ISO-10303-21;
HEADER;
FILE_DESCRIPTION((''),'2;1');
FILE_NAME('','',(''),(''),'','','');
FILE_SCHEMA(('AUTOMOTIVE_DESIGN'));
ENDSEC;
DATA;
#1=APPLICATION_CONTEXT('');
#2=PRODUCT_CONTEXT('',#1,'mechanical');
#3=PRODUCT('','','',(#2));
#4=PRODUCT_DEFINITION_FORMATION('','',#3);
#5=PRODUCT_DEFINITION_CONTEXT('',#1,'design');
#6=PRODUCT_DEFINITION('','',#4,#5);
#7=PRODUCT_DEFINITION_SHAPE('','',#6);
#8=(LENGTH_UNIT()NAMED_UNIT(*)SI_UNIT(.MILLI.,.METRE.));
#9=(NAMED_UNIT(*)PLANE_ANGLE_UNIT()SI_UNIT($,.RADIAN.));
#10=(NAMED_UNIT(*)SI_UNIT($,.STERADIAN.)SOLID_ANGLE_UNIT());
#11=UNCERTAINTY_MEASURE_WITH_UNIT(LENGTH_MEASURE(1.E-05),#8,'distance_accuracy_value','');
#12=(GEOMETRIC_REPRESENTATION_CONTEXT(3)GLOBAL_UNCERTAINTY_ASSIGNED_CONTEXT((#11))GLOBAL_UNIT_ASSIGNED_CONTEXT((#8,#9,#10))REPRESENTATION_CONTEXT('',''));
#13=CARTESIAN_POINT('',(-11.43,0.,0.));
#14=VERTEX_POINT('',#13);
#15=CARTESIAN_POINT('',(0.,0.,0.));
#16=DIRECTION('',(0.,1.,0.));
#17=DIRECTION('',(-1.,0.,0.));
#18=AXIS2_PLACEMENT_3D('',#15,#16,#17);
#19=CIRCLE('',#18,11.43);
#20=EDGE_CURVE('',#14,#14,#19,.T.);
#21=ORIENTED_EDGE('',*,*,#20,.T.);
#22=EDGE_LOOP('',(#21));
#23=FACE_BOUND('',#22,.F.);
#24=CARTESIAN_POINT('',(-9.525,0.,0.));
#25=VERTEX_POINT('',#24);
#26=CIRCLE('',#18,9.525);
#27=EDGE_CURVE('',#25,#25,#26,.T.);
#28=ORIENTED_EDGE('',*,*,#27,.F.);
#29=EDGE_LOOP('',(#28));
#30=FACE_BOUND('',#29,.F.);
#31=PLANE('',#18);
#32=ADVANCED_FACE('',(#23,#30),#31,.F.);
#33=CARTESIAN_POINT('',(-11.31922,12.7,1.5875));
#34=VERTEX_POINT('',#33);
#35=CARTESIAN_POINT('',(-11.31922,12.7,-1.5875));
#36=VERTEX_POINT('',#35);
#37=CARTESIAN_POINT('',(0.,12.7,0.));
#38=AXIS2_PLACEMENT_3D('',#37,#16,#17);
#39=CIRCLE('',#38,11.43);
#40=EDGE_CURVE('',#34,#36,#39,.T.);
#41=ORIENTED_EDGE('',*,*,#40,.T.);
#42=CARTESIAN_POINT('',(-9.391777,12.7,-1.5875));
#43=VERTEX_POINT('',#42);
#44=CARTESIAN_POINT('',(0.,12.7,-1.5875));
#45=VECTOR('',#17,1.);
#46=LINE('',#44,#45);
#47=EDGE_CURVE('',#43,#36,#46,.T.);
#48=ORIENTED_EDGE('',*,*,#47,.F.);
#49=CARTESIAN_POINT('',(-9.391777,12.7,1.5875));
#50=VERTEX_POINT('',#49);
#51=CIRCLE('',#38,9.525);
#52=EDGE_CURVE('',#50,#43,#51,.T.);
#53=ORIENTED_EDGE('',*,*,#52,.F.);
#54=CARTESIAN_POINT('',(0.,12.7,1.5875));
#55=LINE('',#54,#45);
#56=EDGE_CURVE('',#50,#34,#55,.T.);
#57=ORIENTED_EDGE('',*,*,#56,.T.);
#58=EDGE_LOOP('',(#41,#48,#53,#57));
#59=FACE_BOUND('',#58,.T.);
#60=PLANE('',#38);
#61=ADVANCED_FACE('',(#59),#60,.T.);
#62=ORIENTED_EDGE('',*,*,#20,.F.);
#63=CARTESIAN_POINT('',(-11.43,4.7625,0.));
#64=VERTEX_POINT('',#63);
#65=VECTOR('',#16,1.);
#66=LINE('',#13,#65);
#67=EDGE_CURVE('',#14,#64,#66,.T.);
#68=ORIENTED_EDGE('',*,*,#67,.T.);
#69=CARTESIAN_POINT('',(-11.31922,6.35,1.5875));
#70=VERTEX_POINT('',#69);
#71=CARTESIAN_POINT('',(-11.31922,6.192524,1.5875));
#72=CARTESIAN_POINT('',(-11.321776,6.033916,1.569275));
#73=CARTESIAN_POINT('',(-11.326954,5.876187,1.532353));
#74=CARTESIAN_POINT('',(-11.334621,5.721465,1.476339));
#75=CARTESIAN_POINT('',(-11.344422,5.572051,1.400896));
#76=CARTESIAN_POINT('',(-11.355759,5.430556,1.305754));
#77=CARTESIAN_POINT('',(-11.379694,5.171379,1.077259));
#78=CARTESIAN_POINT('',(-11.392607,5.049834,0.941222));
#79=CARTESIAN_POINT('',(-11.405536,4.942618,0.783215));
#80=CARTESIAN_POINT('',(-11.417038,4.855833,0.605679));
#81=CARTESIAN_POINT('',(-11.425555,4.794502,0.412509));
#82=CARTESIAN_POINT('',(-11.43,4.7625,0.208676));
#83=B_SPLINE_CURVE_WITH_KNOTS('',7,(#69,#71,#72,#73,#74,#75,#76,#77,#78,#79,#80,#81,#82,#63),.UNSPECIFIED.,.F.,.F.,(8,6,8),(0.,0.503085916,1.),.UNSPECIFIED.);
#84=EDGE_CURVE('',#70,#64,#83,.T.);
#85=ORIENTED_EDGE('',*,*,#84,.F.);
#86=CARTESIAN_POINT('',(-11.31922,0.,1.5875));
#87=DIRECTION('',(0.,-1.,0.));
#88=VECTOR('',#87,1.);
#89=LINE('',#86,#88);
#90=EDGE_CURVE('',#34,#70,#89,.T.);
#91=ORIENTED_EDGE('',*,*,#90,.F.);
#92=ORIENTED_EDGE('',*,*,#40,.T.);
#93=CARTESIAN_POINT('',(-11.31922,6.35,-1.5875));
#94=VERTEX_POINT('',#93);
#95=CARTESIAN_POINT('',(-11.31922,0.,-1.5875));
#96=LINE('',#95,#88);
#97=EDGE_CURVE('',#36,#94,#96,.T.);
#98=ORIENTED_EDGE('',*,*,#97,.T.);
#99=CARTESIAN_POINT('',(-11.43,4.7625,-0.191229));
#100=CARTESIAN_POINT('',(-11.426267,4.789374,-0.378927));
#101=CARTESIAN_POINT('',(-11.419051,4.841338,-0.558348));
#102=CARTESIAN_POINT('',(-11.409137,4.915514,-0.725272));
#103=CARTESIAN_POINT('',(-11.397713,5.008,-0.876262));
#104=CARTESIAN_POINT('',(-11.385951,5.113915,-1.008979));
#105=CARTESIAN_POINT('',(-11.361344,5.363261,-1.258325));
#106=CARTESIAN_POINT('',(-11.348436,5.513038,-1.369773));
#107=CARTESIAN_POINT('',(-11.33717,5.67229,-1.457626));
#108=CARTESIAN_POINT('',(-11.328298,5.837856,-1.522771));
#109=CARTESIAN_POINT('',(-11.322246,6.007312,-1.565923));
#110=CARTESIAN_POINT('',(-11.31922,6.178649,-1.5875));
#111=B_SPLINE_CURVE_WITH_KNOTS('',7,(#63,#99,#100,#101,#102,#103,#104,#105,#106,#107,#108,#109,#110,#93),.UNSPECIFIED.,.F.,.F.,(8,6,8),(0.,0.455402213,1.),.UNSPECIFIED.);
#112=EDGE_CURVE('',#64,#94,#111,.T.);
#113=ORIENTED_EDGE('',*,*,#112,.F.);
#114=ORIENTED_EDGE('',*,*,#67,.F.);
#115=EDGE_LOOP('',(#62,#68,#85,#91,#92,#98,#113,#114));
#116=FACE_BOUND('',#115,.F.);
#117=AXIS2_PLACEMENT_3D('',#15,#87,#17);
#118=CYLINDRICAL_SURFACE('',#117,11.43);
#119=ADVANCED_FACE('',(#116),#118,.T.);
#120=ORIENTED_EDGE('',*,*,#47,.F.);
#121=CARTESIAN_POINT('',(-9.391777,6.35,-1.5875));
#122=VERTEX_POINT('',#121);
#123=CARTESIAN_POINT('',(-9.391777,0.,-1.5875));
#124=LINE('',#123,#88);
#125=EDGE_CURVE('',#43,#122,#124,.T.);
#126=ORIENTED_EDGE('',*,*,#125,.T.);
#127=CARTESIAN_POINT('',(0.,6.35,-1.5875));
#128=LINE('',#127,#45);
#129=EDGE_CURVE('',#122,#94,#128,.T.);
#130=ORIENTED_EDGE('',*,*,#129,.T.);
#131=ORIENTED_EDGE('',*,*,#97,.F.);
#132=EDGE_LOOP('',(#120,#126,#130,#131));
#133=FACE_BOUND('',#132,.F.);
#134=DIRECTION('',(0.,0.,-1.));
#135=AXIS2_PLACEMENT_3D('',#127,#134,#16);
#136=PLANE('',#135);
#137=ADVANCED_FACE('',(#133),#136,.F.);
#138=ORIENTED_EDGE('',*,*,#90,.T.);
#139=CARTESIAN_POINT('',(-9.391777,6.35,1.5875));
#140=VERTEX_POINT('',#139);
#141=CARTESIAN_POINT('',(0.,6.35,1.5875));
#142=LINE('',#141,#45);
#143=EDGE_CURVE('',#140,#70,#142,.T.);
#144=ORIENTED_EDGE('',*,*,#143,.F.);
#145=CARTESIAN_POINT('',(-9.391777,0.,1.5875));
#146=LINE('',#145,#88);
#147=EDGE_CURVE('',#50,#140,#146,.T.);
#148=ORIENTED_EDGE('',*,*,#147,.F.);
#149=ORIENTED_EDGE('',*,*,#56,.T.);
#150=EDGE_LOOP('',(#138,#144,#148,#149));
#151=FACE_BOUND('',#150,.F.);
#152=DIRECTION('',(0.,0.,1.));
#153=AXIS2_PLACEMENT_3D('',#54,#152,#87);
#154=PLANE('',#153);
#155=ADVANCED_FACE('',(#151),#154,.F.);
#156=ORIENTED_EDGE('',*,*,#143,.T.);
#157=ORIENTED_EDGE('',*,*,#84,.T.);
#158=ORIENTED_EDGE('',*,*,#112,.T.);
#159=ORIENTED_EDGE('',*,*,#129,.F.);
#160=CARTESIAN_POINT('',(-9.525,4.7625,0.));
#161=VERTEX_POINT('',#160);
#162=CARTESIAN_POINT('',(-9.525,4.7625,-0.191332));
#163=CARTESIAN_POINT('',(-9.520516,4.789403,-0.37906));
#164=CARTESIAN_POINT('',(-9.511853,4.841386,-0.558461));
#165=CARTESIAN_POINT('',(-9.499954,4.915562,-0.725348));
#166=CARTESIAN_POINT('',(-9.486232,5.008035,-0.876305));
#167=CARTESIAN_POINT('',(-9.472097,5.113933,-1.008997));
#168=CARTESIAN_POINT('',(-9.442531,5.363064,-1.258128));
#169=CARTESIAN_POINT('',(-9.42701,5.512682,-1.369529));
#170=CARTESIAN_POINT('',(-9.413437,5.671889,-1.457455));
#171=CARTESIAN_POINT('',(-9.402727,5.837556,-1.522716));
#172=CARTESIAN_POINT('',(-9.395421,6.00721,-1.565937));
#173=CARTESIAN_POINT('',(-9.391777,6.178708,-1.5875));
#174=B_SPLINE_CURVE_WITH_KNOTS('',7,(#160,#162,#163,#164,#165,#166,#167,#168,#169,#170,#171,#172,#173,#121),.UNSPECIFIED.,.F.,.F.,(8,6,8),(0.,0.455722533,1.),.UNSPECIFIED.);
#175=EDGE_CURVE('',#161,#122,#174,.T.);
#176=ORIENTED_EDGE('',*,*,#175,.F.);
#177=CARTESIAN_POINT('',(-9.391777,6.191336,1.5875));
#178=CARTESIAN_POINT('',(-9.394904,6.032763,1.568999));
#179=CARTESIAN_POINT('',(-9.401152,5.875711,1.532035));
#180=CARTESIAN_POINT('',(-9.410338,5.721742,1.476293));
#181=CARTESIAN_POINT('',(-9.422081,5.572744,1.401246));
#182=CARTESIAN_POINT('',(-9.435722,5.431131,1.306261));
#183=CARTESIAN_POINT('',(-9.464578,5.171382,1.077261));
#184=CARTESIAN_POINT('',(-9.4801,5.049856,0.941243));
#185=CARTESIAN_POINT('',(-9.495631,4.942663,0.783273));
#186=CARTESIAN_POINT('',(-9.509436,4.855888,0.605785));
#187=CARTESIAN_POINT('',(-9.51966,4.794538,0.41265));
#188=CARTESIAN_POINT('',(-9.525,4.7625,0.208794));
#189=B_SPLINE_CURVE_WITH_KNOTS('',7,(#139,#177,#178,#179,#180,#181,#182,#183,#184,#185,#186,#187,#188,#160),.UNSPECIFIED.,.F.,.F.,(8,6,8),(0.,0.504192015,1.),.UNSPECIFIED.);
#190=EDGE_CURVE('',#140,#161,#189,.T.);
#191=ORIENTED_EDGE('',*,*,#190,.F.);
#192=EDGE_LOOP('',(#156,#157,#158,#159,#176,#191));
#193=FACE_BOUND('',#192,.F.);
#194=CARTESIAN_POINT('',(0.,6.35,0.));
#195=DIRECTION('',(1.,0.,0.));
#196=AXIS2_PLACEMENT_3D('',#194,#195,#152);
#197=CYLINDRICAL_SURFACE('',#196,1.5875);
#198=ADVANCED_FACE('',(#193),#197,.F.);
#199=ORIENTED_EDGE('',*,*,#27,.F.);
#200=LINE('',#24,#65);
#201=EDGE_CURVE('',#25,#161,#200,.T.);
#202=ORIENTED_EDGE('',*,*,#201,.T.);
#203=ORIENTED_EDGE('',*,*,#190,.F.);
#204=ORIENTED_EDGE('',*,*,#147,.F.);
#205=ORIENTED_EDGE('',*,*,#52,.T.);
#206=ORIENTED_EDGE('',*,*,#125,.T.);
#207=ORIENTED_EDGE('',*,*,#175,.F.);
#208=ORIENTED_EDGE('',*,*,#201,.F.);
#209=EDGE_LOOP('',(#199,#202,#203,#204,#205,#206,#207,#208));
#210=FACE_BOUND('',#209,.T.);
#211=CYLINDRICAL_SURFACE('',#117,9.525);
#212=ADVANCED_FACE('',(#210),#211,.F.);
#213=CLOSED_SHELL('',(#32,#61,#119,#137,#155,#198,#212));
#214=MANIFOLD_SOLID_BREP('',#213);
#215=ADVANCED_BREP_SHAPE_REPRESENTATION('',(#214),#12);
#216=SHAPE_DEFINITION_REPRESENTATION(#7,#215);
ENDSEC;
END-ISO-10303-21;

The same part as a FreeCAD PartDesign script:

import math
import FreeCAD as App
import Part
import Sketcher
from FreeCAD import Vector
Q = App.Units.Quantity

doc = App.newDocument("Part")
params = doc.addObject("Spreadsheet::Sheet", "Params")
for row, (alias, value) in enumerate([
    ("sketch1_diameter", "0.9 in"),
    ("sketch1_diameter2", "0.75 in"),
    ("pad1_length", "0.5 in"),
    ("sketch2_radius", "0.0625 in"),
    ("sketch2_width", "0.25 in"),
    ("pocket1_length", "0.5 in"),
], start=1):
    params.set(f"A{row}", alias)
    params.set(f"B{row}", "=" + value)
    params.setAlias(f"B{row}", alias)

body = doc.addObject("PartDesign::Body", "Body")

sketch1 = doc.addObject("Sketcher::SketchObject", "Sketch")
body.addObject(sketch1)
sketch1.AttachmentSupport = (doc.XZ_Plane, [""])
sketch1.MapMode = "FlatFace"
sketch1.addGeometry(Part.Circle(Vector(0, 0, 0), Vector(0, 0, 1), 11), False)
sketch1.addGeometry(Part.Circle(Vector(0, 0, 0), Vector(0, 0, 1), 10), False)
sketch1.addConstraint(Sketcher.Constraint("Coincident", 0, 3, -1, 1))
sketch1.addConstraint(Sketcher.Constraint("Coincident", 1, 3, -1, 1))
sketch1.addConstraint(Sketcher.Constraint("Diameter", 0, Q("0.9 in")))
sketch1.addConstraint(Sketcher.Constraint("Diameter", 1, Q("0.75 in")))
sketch1.setExpression("Constraints[2]", "Params.sketch1_diameter")
sketch1.setExpression("Constraints[3]", "Params.sketch1_diameter2")
pad1 = doc.addObject("PartDesign::Pad", "Pad")
body.addObject(pad1)
pad1.Profile = sketch1
pad1.setExpression("Length", "Params.pad1_length")
pad1.Reversed = True

sketch2 = doc.addObject("Sketcher::SketchObject", "Sketch001")
body.addObject(sketch2)
sketch2.AttachmentSupport = (doc.YZ_Plane, [""])
sketch2.MapMode = "FlatFace"
sketch2.addGeometry(Part.LineSegment(Vector(6.3, -1.6, 0), Vector(12.7, -1.6, 0)), False)
sketch2.addGeometry(Part.LineSegment(Vector(12.7, -1.6, 0), Vector(12.7, 1.6, 0)), False)
sketch2.addGeometry(Part.LineSegment(Vector(12.7, 1.6, 0), Vector(6.3, 1.6, 0)), False)
sketch2.addGeometry(Part.ArcOfCircle(Part.Circle(Vector(6.3, 0, 0), Vector(0, 0, 1), 1.6), math.radians(90), math.radians(270)), False)
sketch2.addConstraint(Sketcher.Constraint("Coincident", 0, 2, 1, 1))
sketch2.addConstraint(Sketcher.Constraint("Coincident", 1, 2, 2, 1))
sketch2.addConstraint(Sketcher.Constraint("Tangent", 2, 2, 3, 1))
sketch2.addConstraint(Sketcher.Constraint("Tangent", 3, 2, 0, 1))
sketch2.addConstraint(Sketcher.Constraint("Horizontal", 0))
sketch2.addConstraint(Sketcher.Constraint("Vertical", 1))
sketch2.addConstraint(Sketcher.Constraint("Horizontal", 2))
sketch2.addConstraint(Sketcher.Constraint("PointOnObject", 3, 3, -1))
sketch2.addConstraint(Sketcher.Constraint("Radius", 3, Q("0.0625 in")))
sketch2.addConstraint(Sketcher.Constraint("DistanceX", 0, 1, 0, 2, Q("0.25 in")))
sketch2.addConstraint(Sketcher.Constraint("DistanceX", -1, 1, 3, 3, Q("0.25 in")))
sketch2.setExpression("Constraints[8]", "Params.sketch2_radius")
sketch2.setExpression("Constraints[9]", "Params.sketch2_width")
pocket1 = doc.addObject("PartDesign::Pocket", "Pocket")
body.addObject(pocket1)
pocket1.Profile = sketch2
pocket1.setExpression("Length", "Params.pocket1_length")

doc.recompute()
